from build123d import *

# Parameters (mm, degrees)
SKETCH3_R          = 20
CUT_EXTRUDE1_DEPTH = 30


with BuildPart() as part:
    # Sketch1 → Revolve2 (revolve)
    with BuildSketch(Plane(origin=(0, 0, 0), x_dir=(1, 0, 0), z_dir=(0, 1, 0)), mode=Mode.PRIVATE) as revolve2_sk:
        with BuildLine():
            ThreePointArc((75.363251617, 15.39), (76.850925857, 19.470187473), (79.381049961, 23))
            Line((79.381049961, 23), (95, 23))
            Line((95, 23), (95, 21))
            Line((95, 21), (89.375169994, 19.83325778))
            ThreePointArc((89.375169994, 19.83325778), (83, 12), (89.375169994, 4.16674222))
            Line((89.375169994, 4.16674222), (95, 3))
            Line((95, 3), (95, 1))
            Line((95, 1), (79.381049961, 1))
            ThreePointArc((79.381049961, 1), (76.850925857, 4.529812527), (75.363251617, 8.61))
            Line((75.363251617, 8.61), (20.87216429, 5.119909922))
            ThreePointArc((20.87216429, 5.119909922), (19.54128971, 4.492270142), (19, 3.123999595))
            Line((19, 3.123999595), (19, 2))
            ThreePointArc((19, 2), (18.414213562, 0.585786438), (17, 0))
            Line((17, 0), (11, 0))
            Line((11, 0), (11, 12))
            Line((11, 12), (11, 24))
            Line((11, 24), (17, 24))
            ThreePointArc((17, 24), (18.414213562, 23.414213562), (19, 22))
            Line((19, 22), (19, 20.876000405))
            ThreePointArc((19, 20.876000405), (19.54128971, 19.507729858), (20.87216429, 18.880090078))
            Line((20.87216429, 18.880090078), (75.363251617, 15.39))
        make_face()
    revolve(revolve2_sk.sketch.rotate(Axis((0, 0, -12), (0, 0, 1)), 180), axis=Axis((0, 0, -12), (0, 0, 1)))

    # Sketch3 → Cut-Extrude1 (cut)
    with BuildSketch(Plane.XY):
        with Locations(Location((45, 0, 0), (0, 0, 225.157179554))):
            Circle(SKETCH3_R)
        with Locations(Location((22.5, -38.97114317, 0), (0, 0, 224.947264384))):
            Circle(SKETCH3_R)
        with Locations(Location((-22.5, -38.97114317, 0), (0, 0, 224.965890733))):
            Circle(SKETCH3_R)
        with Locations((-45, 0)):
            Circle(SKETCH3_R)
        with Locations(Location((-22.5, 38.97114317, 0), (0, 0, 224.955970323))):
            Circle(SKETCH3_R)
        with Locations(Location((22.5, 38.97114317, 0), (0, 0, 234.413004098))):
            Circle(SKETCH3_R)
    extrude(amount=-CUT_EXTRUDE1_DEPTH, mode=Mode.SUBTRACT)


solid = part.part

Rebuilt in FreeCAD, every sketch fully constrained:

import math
import FreeCAD as App
import Part
import Sketcher
from FreeCAD import Vector

doc = App.newDocument("Part")
body = doc.addObject("PartDesign::Body", "Body")

# Sketch on XZ plane
sketch1 = doc.addObject("Sketcher::SketchObject", "Sketch")
body.addObject(sketch1)
sketch1.AttachmentSupport = (doc.XZ_Plane, [""])
sketch1.MapMode = "FlatFace"
sketch1.addGeometry(Part.ArcOfCircle(Part.Circle(Vector(91, -12, 0), Vector(0, 0, 1), 16), math.radians(-167.767745), math.radians(-136.567463)), False)
sketch1.addGeometry(Part.LineSegment(Vector(75.363252, -15.39, 0), Vector(20.872164, -18.88009, 0)), False)
sketch1.addGeometry(Part.ArcOfCircle(Part.Circle(Vector(21, -20.876, 0), Vector(0, 0, 1), 2), math.radians(93.664722), math.radians(180)), False)
sketch1.addGeometry(Part.LineSegment(Vector(19, -20.876, 0), Vector(19, -22, 0)), False)
sketch1.addGeometry(Part.ArcOfCircle(Part.Circle(Vector(17, -22, 0), Vector(0, 0, 1), 2), math.radians(-90), math.radians(0)), False)
sketch1.addGeometry(Part.LineSegment(Vector(17, -24, 0), Vector(11, -24, 0)), False)
sketch1.addGeometry(Part.LineSegment(Vector(11, -24, 0), Vector(11, 0, 0)), False)
sketch1.addGeometry(Part.LineSegment(Vector(11, 0, 0), Vector(17, 0, 0)), False)
sketch1.addGeometry(Part.ArcOfCircle(Part.Circle(Vector(17, -2, 0), Vector(0, 0, 1), 2), math.radians(0), math.radians(90)), False)
sketch1.addGeometry(Part.LineSegment(Vector(19, -2, 0), Vector(19, -3.124, 0)), False)
sketch1.addGeometry(Part.ArcOfCircle(Part.Circle(Vector(21, -3.124, 0), Vector(0, 0, 1), 2), math.radians(180), math.radians(266.335278)), False)
sketch1.addGeometry(Part.LineSegment(Vector(20.872164, -5.11991, 0), Vector(75.363252, -8.61, 0)), False)
sketch1.addGeometry(Part.ArcOfCircle(Part.Circle(Vector(91, -12, 0), Vector(0, 0, 1), 16), math.radians(136.567463), math.radians(167.767745)), False)
sketch1.addGeometry(Part.LineSegment(Vector(79.38105, -1, 0), Vector(95, -1, 0)), False)
sketch1.addGeometry(Part.LineSegment(Vector(95, -1, 0), Vector(95, -3, 0)), False)
sketch1.addGeometry(Part.LineSegment(Vector(95, -3, 0), Vector(89.37517, -4.166742, 0)), False)
sketch1.addGeometry(Part.ArcOfCircle(Part.Circle(Vector(91, -12, 0), Vector(0, 0, 1), 8), math.radians(101.718517), math.radians(258.281483)), False)
sketch1.addGeometry(Part.LineSegment(Vector(89.37517, -19.833258, 0), Vector(95, -21, 0)), False)
sketch1.addGeometry(Part.LineSegment(Vector(95, -21, 0), Vector(95, -23, 0)), False)
sketch1.addGeometry(Part.LineSegment(Vector(95, -23, 0), Vector(79.38105, -23, 0)), False)
sketch1.addConstraint(Sketcher.Constraint("Coincident", 0, 1, 1, 1))
sketch1.addConstraint(Sketcher.Constraint("Tangent", 1, 2, 2, 1))
sketch1.addConstraint(Sketcher.Constraint("Tangent", 2, 2, 3, 1))
sketch1.addConstraint(Sketcher.Constraint("Tangent", 3, 2, 4, 2))
sketch1.addConstraint(Sketcher.Constraint("Tangent", 4, 1, 5, 1))
sketch1.addConstraint(Sketcher.Constraint("Coincident", 5, 2, 6, 1))
sketch1.addConstraint(Sketcher.Constraint("Coincident", 6, 2, 7, 1))
sketch1.addConstraint(Sketcher.Constraint("Tangent", 7, 2, 8, 2))
sketch1.addConstraint(Sketcher.Constraint("Tangent", 8, 1, 9, 1))
sketch1.addConstraint(Sketcher.Constraint("Tangent", 9, 2, 10, 1))
sketch1.addConstraint(Sketcher.Constraint("Tangent", 10, 2, 11, 1))
sketch1.addConstraint(Sketcher.Constraint("Coincident", 11, 2, 12, 2))
sketch1.addConstraint(Sketcher.Constraint("Coincident", 12, 1, 13, 1))
sketch1.addConstraint(Sketcher.Constraint("Coincident", 13, 2, 14, 1))
sketch1.addConstraint(Sketcher.Constraint("Coincident", 14, 2, 15, 1))
sketch1.addConstraint(Sketcher.Constraint("Tangent", 15, 2, 16, 1))
sketch1.addConstraint(Sketcher.Constraint("Tangent", 16, 2, 17, 1))
sketch1.addConstraint(Sketcher.Constraint("Coincident", 17, 2, 18, 1))
sketch1.addConstraint(Sketcher.Constraint("Coincident", 18, 2, 19, 1))
sketch1.addConstraint(Sketcher.Constraint("Coincident", 19, 2, 0, 2))
sketch1.addConstraint(Sketcher.Constraint("Vertical", 3))
sketch1.addConstraint(Sketcher.Constraint("Horizontal", 5))
sketch1.addConstraint(Sketcher.Constraint("Vertical", 6))
sketch1.addConstraint(Sketcher.Constraint("Horizontal", 7))
sketch1.addConstraint(Sketcher.Constraint("Vertical", 9))
sketch1.addConstraint(Sketcher.Constraint("Horizontal", 13))
sketch1.addConstraint(Sketcher.Constraint("Vertical", 14))
sketch1.addConstraint(Sketcher.Constraint("Vertical", 18))
sketch1.addConstraint(Sketcher.Constraint("Horizontal", 19))
sketch1.addConstraint(Sketcher.Constraint("Coincident", 12, 3, 0, 3))
sketch1.addConstraint(Sketcher.Constraint("Coincident", 16, 3, 0, 3))
sketch1.addConstraint(Sketcher.Constraint("Equal", 2, 4))
sketch1.addConstraint(Sketcher.Constraint("Equal", 4, 8))
sketch1.addConstraint(Sketcher.Constraint("Equal", 8, 10))
sketch1.addConstraint(Sketcher.Constraint("Equal", 0, 12))
sketch1.addConstraint(Sketcher.Constraint("PointOnObject", 6, 2, -1))
sketch1.addConstraint(Sketcher.Constraint("Vertical", 4, 3, 8, 3))
sketch1.addConstraint(Sketcher.Constraint("Vertical", 1, 2, 10, 2))
sketch1.addConstraint(Sketcher.Constraint("Vertical", 0, 1, 11, 2))
sketch1.addConstraint(Sketcher.Constraint("Vertical", 15, 2, 16, 2))
sketch1.addConstraint(Sketcher.Constraint("Vertical", 14, 2, 17, 2))
sketch1.addConstraint(Sketcher.Constraint("Vertical", 12, 1, 19, 2))
sketch1.addConstraint(Sketcher.Constraint("Equal", 3, 9))
sketch1.addConstraint(Sketcher.Constraint("Radius", 0, 16.0))
sketch1.addConstraint(Sketcher.Constraint("Radius", 2, 2.0))
sketch1.addConstraint(Sketcher.Constraint("Radius", 16, 8.0))
sketch1.addConstraint(Sketcher.Constraint("DistanceX", 5, 2, 5, 1, 6.0))
sketch1.addConstraint(Sketcher.Constraint("DistanceY", 6, 1, 6, 2, 24.0))
sketch1.addConstraint(Sketcher.Constraint("DistanceY", 14, 2, 14, 1, 2.0))
sketch1.addConstraint(Sketcher.Constraint("DistanceX", -1, 1, 0, 3, 91.0))
sketch1.addConstraint(Sketcher.Constraint("DistanceX", -1, 1, 2, 3, 21.0))
sketch1.addConstraint(Sketcher.Constraint("DistanceY", 12, 1, -1, 1, 1.0))
sketch1.addConstraint(Sketcher.Constraint("DistanceX", -1, 1, 13, 2, 95.0))
sketch1.addConstraint(Sketcher.Constraint("DistanceY", 3, 2, 3, 1, 1.124))
sketch1.addConstraint(Sketcher.Constraint("DistanceY", 0, 1, -1, 1, 15.39))
revolution = doc.addObject("PartDesign::Revolution", "Revolution")
body.addObject(revolution)
revolution.Profile = sketch1
revolution.ReferenceAxis = (sketch1, ["V_Axis"])
revolution.Angle = 360

# Sketch on XY plane
sketch2 = doc.addObject("Sketcher::SketchObject", "Sketch001")
body.addObject(sketch2)
sketch2.AttachmentSupport = (doc.XY_Plane, [""])
sketch2.MapMode = "FlatFace"
sketch2.addGeometry(Part.Circle(Vector(45, 0, 0), Vector(0, 0, 1), 20), False)
sketch2.addGeometry(Part.Circle(Vector(22.5, -38.971143, 0), Vector(0, 0, 1), 20), False)
sketch2.addGeometry(Part.Circle(Vector(-22.5, -38.971143, 0), Vector(0, 0, 1), 20), False)
sketch2.addGeometry(Part.Circle(Vector(-45, 0, 0), Vector(0, 0, 1), 20), False)
sketch2.addGeometry(Part.Circle(Vector(-22.5, 38.971143, 0), Vector(0, 0, 1), 20), False)
sketch2.addGeometry(Part.Circle(Vector(22.5, 38.971143, 0), Vector(0, 0, 1), 20), False)
sketch2.addConstraint(Sketcher.Constraint("Equal", 0, 1))
sketch2.addConstraint(Sketcher.Constraint("Equal", 1, 2))
sketch2.addConstraint(Sketcher.Constraint("Equal", 2, 3))
sketch2.addConstraint(Sketcher.Constraint("Equal", 3, 4))
sketch2.addConstraint(Sketcher.Constraint("Equal", 4, 5))
sketch2.addConstraint(Sketcher.Constraint("Symmetric", 0, 3, 3, 3, -1, 1))
sketch2.addConstraint(Sketcher.Constraint("Symmetric", 1, 3, 4, 3, -1, 1))
sketch2.addConstraint(Sketcher.Constraint("Symmetric", 2, 3, 5, 3, -1, 1))
sketch2.addConstraint(Sketcher.Constraint("Symmetric", 1, 3, 2, 3, -2))
sketch2.addConstraint(Sketcher.Constraint("PointOnObject", 0, 3, -1))
sketch2.addConstraint(Sketcher.Constraint("Diameter", 0, 40.0))
sketch2.addConstraint(Sketcher.Constraint("DistanceX", -1, 1, 0, 3, 45.0))
sketch2.addConstraint(Sketcher.Constraint("DistanceX", 2, 3, 1, 3, 45.0))
sketch2.addConstraint(Sketcher.Constraint("DistanceY", 1, 3, -1, 1, 38.971143))
pocket1 = doc.addObject("PartDesign::Pocket", "Pocket")
body.addObject(pocket1)
pocket1.Profile = sketch2
pocket1.Length = 30

doc.recompute()
